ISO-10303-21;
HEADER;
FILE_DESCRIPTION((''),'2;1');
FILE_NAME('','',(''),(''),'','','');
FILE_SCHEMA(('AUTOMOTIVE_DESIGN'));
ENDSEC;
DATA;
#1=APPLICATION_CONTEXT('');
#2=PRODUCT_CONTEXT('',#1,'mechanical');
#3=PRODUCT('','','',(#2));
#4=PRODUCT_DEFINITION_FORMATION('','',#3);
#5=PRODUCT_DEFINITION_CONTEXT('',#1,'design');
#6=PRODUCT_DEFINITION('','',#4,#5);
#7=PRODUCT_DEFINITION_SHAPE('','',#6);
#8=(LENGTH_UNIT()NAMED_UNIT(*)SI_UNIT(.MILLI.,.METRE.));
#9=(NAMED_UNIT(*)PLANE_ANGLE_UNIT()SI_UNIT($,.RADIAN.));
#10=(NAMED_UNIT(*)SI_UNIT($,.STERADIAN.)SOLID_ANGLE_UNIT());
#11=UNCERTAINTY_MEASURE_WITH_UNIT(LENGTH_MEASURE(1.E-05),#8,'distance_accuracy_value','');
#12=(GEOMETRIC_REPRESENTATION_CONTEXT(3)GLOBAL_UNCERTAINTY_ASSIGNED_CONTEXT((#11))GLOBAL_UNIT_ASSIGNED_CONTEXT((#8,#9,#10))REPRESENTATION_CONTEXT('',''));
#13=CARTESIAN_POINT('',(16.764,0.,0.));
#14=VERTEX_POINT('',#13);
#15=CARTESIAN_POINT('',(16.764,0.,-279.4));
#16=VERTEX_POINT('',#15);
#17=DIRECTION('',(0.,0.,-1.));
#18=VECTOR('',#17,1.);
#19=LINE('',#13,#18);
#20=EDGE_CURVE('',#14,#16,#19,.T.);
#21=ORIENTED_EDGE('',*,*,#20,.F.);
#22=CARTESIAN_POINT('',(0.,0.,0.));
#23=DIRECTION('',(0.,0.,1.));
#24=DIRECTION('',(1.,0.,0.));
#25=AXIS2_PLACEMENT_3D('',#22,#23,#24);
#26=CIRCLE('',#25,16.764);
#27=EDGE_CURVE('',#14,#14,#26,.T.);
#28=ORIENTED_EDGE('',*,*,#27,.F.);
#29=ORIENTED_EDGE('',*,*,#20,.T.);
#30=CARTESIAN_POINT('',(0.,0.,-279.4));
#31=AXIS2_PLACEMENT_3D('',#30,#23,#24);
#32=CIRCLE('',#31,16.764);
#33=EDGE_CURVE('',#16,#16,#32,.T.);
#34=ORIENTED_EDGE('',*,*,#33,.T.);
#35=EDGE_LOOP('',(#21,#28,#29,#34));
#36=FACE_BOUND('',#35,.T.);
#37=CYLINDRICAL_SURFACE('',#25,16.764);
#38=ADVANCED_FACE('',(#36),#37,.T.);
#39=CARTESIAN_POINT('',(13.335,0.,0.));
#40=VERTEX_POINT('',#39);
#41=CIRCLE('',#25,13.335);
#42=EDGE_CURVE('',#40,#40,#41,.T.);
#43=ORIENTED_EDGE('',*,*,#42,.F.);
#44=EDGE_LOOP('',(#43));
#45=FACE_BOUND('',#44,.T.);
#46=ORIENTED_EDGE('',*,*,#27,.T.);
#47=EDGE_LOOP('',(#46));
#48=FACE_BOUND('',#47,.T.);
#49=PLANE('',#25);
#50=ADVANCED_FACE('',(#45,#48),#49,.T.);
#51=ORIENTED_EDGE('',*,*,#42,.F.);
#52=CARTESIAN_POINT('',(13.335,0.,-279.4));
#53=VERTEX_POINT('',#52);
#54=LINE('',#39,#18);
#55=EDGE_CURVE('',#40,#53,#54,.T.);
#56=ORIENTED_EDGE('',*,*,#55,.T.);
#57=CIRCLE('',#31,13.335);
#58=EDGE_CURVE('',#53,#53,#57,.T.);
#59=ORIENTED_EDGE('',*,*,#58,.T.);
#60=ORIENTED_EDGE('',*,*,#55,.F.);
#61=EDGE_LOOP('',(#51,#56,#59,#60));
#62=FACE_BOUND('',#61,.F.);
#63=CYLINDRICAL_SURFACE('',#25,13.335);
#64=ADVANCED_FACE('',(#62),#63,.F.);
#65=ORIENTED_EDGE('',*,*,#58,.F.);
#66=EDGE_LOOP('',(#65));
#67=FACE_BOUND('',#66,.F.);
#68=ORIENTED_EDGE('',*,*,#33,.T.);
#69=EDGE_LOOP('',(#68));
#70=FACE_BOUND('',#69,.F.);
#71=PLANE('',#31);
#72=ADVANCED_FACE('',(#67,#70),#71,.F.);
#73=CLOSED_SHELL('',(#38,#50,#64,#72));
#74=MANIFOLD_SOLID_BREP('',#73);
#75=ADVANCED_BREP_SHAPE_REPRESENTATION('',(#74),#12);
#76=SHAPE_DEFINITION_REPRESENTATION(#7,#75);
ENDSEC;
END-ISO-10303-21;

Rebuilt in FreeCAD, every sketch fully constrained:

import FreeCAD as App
import Part
import Sketcher
from FreeCAD import Vector
Q = App.Units.Quantity

doc = App.newDocument("Part")
body = doc.addObject("PartDesign::Body", "Body")

# Sketch on XY plane
sketch1 = body.newObject("Sketcher::SketchObject", "Sketch")
sketch1.AttachmentSupport = (doc.getObject("XY_Plane"), [""])
sketch1.MapMode = "FlatFace"
sketch1.addGeometry([
    Part.Circle(Vector(0, 0, 0), Vector(0, 0, 1), 17),
    Part.Circle(Vector(0, 0, 0), Vector(0, 0, 1), 13),
], False)
sketch1.addConstraint([
    Sketcher.Constraint("Coincident", 0, 3, -1, 1),
    Sketcher.Constraint("Coincident", 1, 3, -1, 1),
    Sketcher.Constraint("Diameter", 0, Q("1.32 in")),
    Sketcher.Constraint("Diameter", 1, Q("1.05 in")),
])
pad1 = body.newObject("PartDesign::Pad", "Pad")
pad1.Profile = sketch1
pad1.Length = Q("11 in")
pad1.Reversed = True

doc.recompute()
